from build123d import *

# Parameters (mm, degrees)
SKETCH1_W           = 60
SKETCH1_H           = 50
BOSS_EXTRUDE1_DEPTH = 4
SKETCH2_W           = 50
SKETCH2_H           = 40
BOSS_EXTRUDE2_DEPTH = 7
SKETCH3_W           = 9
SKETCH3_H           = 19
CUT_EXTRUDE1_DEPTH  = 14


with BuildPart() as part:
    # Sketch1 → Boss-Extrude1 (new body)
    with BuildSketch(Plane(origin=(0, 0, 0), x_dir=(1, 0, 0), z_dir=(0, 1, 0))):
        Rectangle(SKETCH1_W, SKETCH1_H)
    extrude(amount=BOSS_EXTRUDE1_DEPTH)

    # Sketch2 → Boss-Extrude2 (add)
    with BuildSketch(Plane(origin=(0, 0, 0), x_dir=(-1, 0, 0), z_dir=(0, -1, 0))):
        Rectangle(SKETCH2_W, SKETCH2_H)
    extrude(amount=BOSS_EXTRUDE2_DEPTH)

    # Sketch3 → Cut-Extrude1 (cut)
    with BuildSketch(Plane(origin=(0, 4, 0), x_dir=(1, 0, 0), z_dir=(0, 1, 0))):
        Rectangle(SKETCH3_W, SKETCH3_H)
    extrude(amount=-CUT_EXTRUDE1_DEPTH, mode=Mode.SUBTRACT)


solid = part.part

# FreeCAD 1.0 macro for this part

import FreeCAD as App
import Part
import Sketcher
from FreeCAD import Vector

doc = App.newDocument("Part")
body = doc.addObject("PartDesign::Body", "Body")

# Sketch on XZ plane
sketch1 = body.newObject("Sketcher::SketchObject", "Sketch")
sketch1.AttachmentSupport = (doc.getObject("XZ_Plane"), [""])
sketch1.MapMode = "FlatFace"
sketch1.addGeometry([
    Part.LineSegment(Vector(-30, -25, 0), Vector(-30, 25, 0)),
    Part.LineSegment(Vector(-30, 25, 0), Vector(30, 25, 0)),
    Part.LineSegment(Vector(30, 25, 0), Vector(30, -25, 0)),
    Part.LineSegment(Vector(30, -25, 0), Vector(-30, -25, 0)),
], False)
sketch1.addConstraint([
    Sketcher.Constraint("Coincident", 0, 2, 1, 1),
    Sketcher.Constraint("Coincident", 1, 2, 2, 1),
    Sketcher.Constraint("Coincident", 2, 2, 3, 1),
    Sketcher.Constraint("Coincident", 3, 2, 0, 1),
    Sketcher.Constraint("Vertical", 0),
    Sketcher.Constraint("Horizontal", 1),
    Sketcher.Constraint("Vertical", 2),
    Sketcher.Constraint("Horizontal", 3),
    Sketcher.Constraint("Symmetric", 0, 2, 2, 2, -1, 1),
    Sketcher.Constraint("DistanceX", 1, 1, 1, 2, 60.0),
    Sketcher.Constraint("DistanceY", 0, 1, 0, 2, 50.0),
])
pad1 = body.newObject("PartDesign::Pad", "Pad")
pad1.Profile = sketch1
pad1.Length = 4
pad1.Reversed = True

# Sketch on XZ plane
sketch2 = body.newObject("Sketcher::SketchObject", "Sketch001")
sketch2.AttachmentSupport = (doc.getObject("XZ_Plane"), [""])
sketch2.MapMode = "FlatFace"
sketch2.addGeometry([
    Part.LineSegment(Vector(25, -20, 0), Vector(25, 20, 0)),
    Part.LineSegment(Vector(25, 20, 0), Vector(-25, 20, 0)),
    Part.LineSegment(Vector(-25, 20, 0), Vector(-25, -20, 0)),
    Part.LineSegment(Vector(-25, -20, 0), Vector(25, -20, 0)),
], False)
sketch2.addConstraint([
    Sketcher.Constraint("Coincident", 0, 2, 1, 1),
    Sketcher.Constraint("Coincident", 1, 2, 2, 1),
    Sketcher.Constraint("Coincident", 2, 2, 3, 1),
    Sketcher.Constraint("Coincident", 3, 2, 0, 1),
    Sketcher.Constraint("Vertical", 0),
    Sketcher.Constraint("Horizontal", 1),
    Sketcher.Constraint("Vertical", 2),
    Sketcher.Constraint("Horizontal", 3),
    Sketcher.Constraint("Symmetric", 0, 2, 2, 2, -1, 1),
    Sketcher.Constraint("DistanceX", 1, 2, 1, 1, 50.0),
    Sketcher.Constraint("DistanceY", 0, 1, 0, 2, 40.0),
])
pad2 = body.newObject("PartDesign::Pad", "Pad001")
pad2.Profile = sketch2
pad2.Length = 7

# Sketch on XZ plane
sketch3 = body.newObject("Sketcher::SketchObject", "Sketch002")
sketch3.AttachmentSupport = (doc.getObject("XZ_Plane"), [""])
sketch3.MapMode = "FlatFace"
sketch3.AttachmentOffset = App.Placement(Vector(0, 0, -4), App.Rotation())
sketch3.addGeometry([
    Part.LineSegment(Vector(-4, -10, 0), Vector(-4, 10, 0)),
    Part.LineSegment(Vector(-4, 10, 0), Vector(4, 10, 0)),
    Part.LineSegment(Vector(4, 10, 0), Vector(4, -10, 0)),
    Part.LineSegment(Vector(4, -10, 0), Vector(-4, -10, 0)),
], False)
sketch3.addConstraint([
    Sketcher.Constraint("Coincident", 0, 2, 1, 1),
    Sketcher.Constraint("Coincident", 1, 2, 2, 1),
    Sketcher.Constraint("Coincident", 2, 2, 3, 1),
    Sketcher.Constraint("Coincident", 3, 2, 0, 1),
    Sketcher.Constraint("Vertical", 0),
    Sketcher.Constraint("Horizontal", 1),
    Sketcher.Constraint("Vertical", 2),
    Sketcher.Constraint("Horizontal", 3),
    Sketcher.Constraint("Symmetric", 0, 2, 2, 2, -1, 1),
    Sketcher.Constraint("DistanceX", 1, 1, 1, 2, 9.0),
    Sketcher.Constraint("DistanceY", 0, 1, 0, 2, 19.0),
])
pocket1 = body.newObject("PartDesign::Pocket", "Pocket")
pocket1.Profile = sketch3
pocket1.Length = 14
pocket1.Reversed = True

doc.recompute()
